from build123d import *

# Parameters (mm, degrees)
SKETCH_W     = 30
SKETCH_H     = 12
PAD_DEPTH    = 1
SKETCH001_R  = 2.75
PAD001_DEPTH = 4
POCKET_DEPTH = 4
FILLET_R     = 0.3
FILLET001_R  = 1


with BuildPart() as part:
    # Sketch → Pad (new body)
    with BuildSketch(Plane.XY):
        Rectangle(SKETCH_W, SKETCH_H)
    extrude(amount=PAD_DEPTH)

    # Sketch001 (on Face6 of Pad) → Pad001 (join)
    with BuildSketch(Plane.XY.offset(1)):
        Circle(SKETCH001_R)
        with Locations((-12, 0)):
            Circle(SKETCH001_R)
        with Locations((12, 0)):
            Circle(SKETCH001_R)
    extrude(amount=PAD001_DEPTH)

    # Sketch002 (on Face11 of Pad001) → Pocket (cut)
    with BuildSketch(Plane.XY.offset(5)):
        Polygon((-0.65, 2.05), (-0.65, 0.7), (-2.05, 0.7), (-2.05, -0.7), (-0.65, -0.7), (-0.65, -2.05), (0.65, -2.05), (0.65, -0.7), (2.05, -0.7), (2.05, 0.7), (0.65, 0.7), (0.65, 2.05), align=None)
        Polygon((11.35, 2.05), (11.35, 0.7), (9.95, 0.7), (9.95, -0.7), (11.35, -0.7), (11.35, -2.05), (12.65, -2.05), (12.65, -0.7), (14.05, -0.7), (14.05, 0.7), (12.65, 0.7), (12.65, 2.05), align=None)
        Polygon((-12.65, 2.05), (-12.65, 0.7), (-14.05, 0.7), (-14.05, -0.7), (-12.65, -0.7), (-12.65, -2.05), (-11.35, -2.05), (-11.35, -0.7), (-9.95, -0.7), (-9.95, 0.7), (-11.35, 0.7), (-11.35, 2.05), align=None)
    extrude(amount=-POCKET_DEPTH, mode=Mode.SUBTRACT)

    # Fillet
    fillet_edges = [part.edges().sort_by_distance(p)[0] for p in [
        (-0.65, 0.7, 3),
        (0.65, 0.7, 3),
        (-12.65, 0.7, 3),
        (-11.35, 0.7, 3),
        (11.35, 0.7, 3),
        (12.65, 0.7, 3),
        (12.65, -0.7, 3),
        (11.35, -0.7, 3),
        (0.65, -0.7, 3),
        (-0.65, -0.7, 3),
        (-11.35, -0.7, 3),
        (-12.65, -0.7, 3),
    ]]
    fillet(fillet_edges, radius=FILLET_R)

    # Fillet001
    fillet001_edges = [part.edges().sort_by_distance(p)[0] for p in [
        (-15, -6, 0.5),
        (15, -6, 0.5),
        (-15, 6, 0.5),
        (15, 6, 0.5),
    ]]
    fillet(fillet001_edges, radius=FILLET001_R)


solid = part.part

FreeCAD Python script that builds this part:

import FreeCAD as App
import Part
import Sketcher

V = App.Vector
Q = App.Units.Quantity


def edges_at(feature, points):
    """Names of the edges that pass closest to the given points."""
    edges = feature.Shape.Edges
    near = lambda p: min(range(len(edges)), key=lambda i: edges[i].distToShape(Part.Vertex(*p))[0])
    return sorted({f"Edge{near(p) + 1}" for p in points})

doc = App.newDocument("Part")
params = doc.addObject("Spreadsheet::Sheet", "Params")
for row, (alias, value) in enumerate([
    ("sketch1_width", "30 mm"),
    ("sketch1_height", "12 mm"),
    ("pad1_length", "1 mm"),
    ("sketch2_diameter", "5.5 mm"),
    ("pad2_length", "4 mm"),
    ("sketch3_width", "1.4 mm"),
    ("sketch3_width2", "1.3 mm"),
    ("sketch3_height", "1.35 mm"),
    ("pocket1_length", "4 mm"),
    ("fillet_radius", "0.3 mm"),
    ("fillet2_radius", "1 mm"),
], start=1):
    params.set(f"A{row}", alias)
    params.set(f"B{row}", "=" + value)
    params.setAlias(f"B{row}", alias)

body = doc.addObject("PartDesign::Body", "Body")

sketch1 = doc.addObject("Sketcher::SketchObject", "Sketch")
body.addObject(sketch1)
sketch1.AttachmentSupport = (doc.XY_Plane, [""])
sketch1.MapMode = "FlatFace"
sketch1.addGeometry([
    Part.LineSegment(V(-15, 6, 0), V(-15, -6, 0)),
    Part.LineSegment(V(-15, -6, 0), V(15, -6, 0)),
    Part.LineSegment(V(15, -6, 0), V(15, 6, 0)),
    Part.LineSegment(V(15, 6, 0), V(-15, 6, 0)),
], False)
sketch1.addConstraint([
    Sketcher.Constraint("Coincident", 0, 2, 1, 1),
    Sketcher.Constraint("Coincident", 1, 2, 2, 1),
    Sketcher.Constraint("Coincident", 2, 2, 3, 1),
    Sketcher.Constraint("Coincident", 3, 2, 0, 1),
    Sketcher.Constraint("Vertical", 0),
    Sketcher.Constraint("Horizontal", 1),
    Sketcher.Constraint("Vertical", 2),
    Sketcher.Constraint("Horizontal", 3),
    Sketcher.Constraint("Symmetric", 0, 2, 2, 2, -1, 1),
    Sketcher.Constraint("DistanceX", 1, 1, 1, 2, Q("30 mm")),
    Sketcher.Constraint("DistanceY", 0, 2, 0, 1, Q("12 mm")),
])
sketch1.setExpression("Constraints[9]", "Params.sketch1_width")
sketch1.setExpression("Constraints[10]", "Params.sketch1_height")
pad1 = doc.addObject("PartDesign::Pad", "Pad")
body.addObject(pad1)
pad1.Profile = sketch1
pad1.setExpression("Length", "Params.pad1_length")

sketch2 = doc.addObject("Sketcher::SketchObject", "Sketch001")
body.addObject(sketch2)
sketch2.AttachmentSupport = (doc.XY_Plane, [""])
sketch2.MapMode = "FlatFace"
sketch2.AttachmentOffset = App.Placement(V(0, 0, 1), App.Rotation())
sketch2.addGeometry([
    Part.Circle(V(0, 0, 0), V(0, 0, 1), 2.8),
    Part.Circle(V(-12, 0, 0), V(0, 0, 1), 2.8),
    Part.Circle(V(12, 0, 0), V(0, 0, 1), 2.8),
], False)
sketch2.addConstraint([
    Sketcher.Constraint("Coincident", 0, 3, -1, 1),
    Sketcher.Constraint("Equal", 0, 1),
    Sketcher.Constraint("Equal", 1, 2),
    Sketcher.Constraint("Symmetric", 1, 3, 2, 3, -1, 1),
    Sketcher.Constraint("PointOnObject", 1, 3, -1),
    Sketcher.Constraint("Diameter", 0, Q("5.5 mm")),
    Sketcher.Constraint("DistanceX", 1, 3, -1, 1, Q("12 mm")),
])
sketch2.setExpression("Constraints[5]", "Params.sketch2_diameter")
pad2 = doc.addObject("PartDesign::Pad", "Pad001")
body.addObject(pad2)
pad2.Profile = sketch2
pad2.setExpression("Length", "Params.pad2_length")

sketch3 = doc.addObject("Sketcher::SketchObject", "Sketch002")
body.addObject(sketch3)
sketch3.AttachmentSupport = (doc.XY_Plane, [""])
sketch3.MapMode = "FlatFace"
sketch3.AttachmentOffset = App.Placement(V(0, 0, 5), App.Rotation())
sketch3.addGeometry([
    Part.LineSegment(V(-0.7, 2, 0), V(-0.7, 0.7, 0)),
    Part.LineSegment(V(-0.7, 0.7, 0), V(-2, 0.7, 0)),
    Part.LineSegment(V(-2, 0.7, 0), V(-2, -0.7, 0)),
    Part.LineSegment(V(-2, -0.7, 0), V(-0.7, -0.7, 0)),
    Part.LineSegment(V(-0.7, -0.7, 0), V(-0.7, -2, 0)),
    Part.LineSegment(V(-0.7, -2, 0), V(0.7, -2, 0)),
    Part.LineSegment(V(0.7, -2, 0), V(0.7, -0.7, 0)),
    Part.LineSegment(V(0.7, -0.7, 0), V(2, -0.7, 0)),
    Part.LineSegment(V(2, -0.7, 0), V(2, 0.7, 0)),
    Part.LineSegment(V(2, 0.7, 0), V(0.7, 0.7, 0)),
    Part.LineSegment(V(0.7, 0.7, 0), V(0.7, 2, 0)),
    Part.LineSegment(V(0.7, 2, 0), V(-0.7, 2, 0)),
    Part.LineSegment(V(11.3, 2, 0), V(11.3, 0.7, 0)),
    Part.LineSegment(V(11.3, 0.7, 0), V(9.9, 0.7, 0)),
    Part.LineSegment(V(9.9, 0.7, 0), V(9.9, -0.7, 0)),
    Part.LineSegment(V(9.9, -0.7, 0), V(11.3, -0.7, 0)),
    Part.LineSegment(V(11.3, -0.7, 0), V(11.3, -2, 0)),
    Part.LineSegment(V(11.3, -2, 0), V(12.7, -2, 0)),
    Part.LineSegment(V(12.7, -2, 0), V(12.7, -0.7, 0)),
    Part.LineSegment(V(12.7, -0.7, 0), V(14.1, -0.7, 0)),
    Part.LineSegment(V(14.1, -0.7, 0), V(14.1, 0.7, 0)),
    Part.LineSegment(V(14.1, 0.7, 0), V(12.7, 0.7, 0)),
    Part.LineSegment(V(12.7, 0.7, 0), V(12.7, 2, 0)),
    Part.LineSegment(V(12.7, 2, 0), V(11.3, 2, 0)),
    Part.LineSegment(V(-12.7, 2, 0), V(-12.7, 0.7, 0)),
    Part.LineSegment(V(-12.7, 0.7, 0), V(-14.1, 0.7, 0)),
    Part.LineSegment(V(-14.1, 0.7, 0), V(-14.1, -0.7, 0)),
    Part.LineSegment(V(-14.1, -0.7, 0), V(-12.7, -0.7, 0)),
    Part.LineSegment(V(-12.7, -0.7, 0), V(-12.7, -2, 0)),
    Part.LineSegment(V(-12.7, -2, 0), V(-11.3, -2, 0)),
    Part.LineSegment(V(-11.3, -2, 0), V(-11.3, -0.7, 0)),
    Part.LineSegment(V(-11.3, -0.7, 0), V(-9.9, -0.7, 0)),
    Part.LineSegment(V(-9.9, -0.7, 0), V(-9.9, 0.7, 0)),
    Part.LineSegment(V(-9.9, 0.7, 0), V(-11.3, 0.7, 0)),
    Part.LineSegment(V(-11.3, 0.7, 0), V(-11.3, 2, 0)),
    Part.LineSegment(V(-11.3, 2, 0), V(-12.7, 2, 0)),
], False)
sketch3.addConstraint([
    Sketcher.Constraint("Coincident", 0, 2, 1, 1),
    Sketcher.Constraint("Coincident", 1, 2, 2, 1),
    Sketcher.Constraint("Coincident", 2, 2, 3, 1),
    Sketcher.Constraint("Coincident", 3, 2, 4, 1),
    Sketcher.Constraint("Coincident", 4, 2, 5, 1),
    Sketcher.Constraint("Coincident", 5, 2, 6, 1),
    Sketcher.Constraint("Coincident", 6, 2, 7, 1),
    Sketcher.Constraint("Coincident", 7, 2, 8, 1),
    Sketcher.Constraint("Coincident", 8, 2, 9, 1),
    Sketcher.Constraint("Coincident", 9, 2, 10, 1),
    Sketcher.Constraint("Coincident", 10, 2, 11, 1),
    Sketcher.Constraint("Coincident", 11, 2, 0, 1),
    Sketcher.Constraint("Coincident", 12, 2, 13, 1),
    Sketcher.Constraint("Coincident", 13, 2, 14, 1),
    Sketcher.Constraint("Coincident", 14, 2, 15, 1),
    Sketcher.Constraint("Coincident", 15, 2, 16, 1),
    Sketcher.Constraint("Coincident", 16, 2, 17, 1),
    Sketcher.Constraint("Coincident", 17, 2, 18, 1),
    Sketcher.Constraint("Coincident", 18, 2, 19, 1),
    Sketcher.Constraint("Coincident", 19, 2, 20, 1),
    Sketcher.Constraint("Coincident", 20, 2, 21, 1),
    Sketcher.Constraint("Coincident", 21, 2, 22, 1),
    Sketcher.Constraint("Coincident", 22, 2, 23, 1),
    Sketcher.Constraint("Coincident", 23, 2, 12, 1),
    Sketcher.Constraint("Coincident", 24, 2, 25, 1),
    Sketcher.Constraint("Coincident", 25, 2, 26, 1),
    Sketcher.Constraint("Coincident", 26, 2, 27, 1),
    Sketcher.Constraint("Coincident", 27, 2, 28, 1),
    Sketcher.Constraint("Coincident", 28, 2, 29, 1),
    Sketcher.Constraint("Coincident", 29, 2, 30, 1),
    Sketcher.Constraint("Coincident", 30, 2, 31, 1),
    Sketcher.Constraint("Coincident", 31, 2, 32, 1),
    Sketcher.Constraint("Coincident", 32, 2, 33, 1),
    Sketcher.Constraint("Coincident", 33, 2, 34, 1),
    Sketcher.Constraint("Coincident", 34, 2, 35, 1),
    Sketcher.Constraint("Coincident", 35, 2, 24, 1),
    Sketcher.Constraint("Vertical", 0),
    Sketcher.Constraint("Horizontal", 1),
    Sketcher.Constraint("Vertical", 2),
    Sketcher.Constraint("Horizontal", 3),
    Sketcher.Constraint("Vertical", 4),
    Sketcher.Constraint("Horizontal", 5),
    Sketcher.Constraint("Vertical", 6),
    Sketcher.Constraint("Horizontal", 7),
    Sketcher.Constraint("Vertical", 8),
    Sketcher.Constraint("Horizontal", 9),
    Sketcher.Constraint("Vertical", 10),
    Sketcher.Constraint("Horizontal", 11),
    Sketcher.Constraint("Vertical", 12),
    Sketcher.Constraint("Horizontal", 13),
    Sketcher.Constraint("Vertical", 14),
    Sketcher.Constraint("Horizontal", 15),
    Sketcher.Constraint("Vertical", 16),
    Sketcher.Constraint("Horizontal", 17),
    Sketcher.Constraint("Vertical", 18),
    Sketcher.Constraint("Horizontal", 19),
    Sketcher.Constraint("Vertical", 20),
    Sketcher.Constraint("Horizontal", 21),
    Sketcher.Constraint("Vertical", 22),
    Sketcher.Constraint("Horizontal", 23),
    Sketcher.Constraint("Vertical", 24),
    Sketcher.Constraint("Horizontal", 25),
    Sketcher.Constraint("Vertical", 26),
    Sketcher.Constraint("Horizontal", 27),
    Sketcher.Constraint("Vertical", 28),
    Sketcher.Constraint("Horizontal", 29),
    Sketcher.Constraint("Vertical", 30),
    Sketcher.Constraint("Horizontal", 31),
    Sketcher.Constraint("Vertical", 32),
    Sketcher.Constraint("Horizontal", 33),
    Sketcher.Constraint("Vertical", 34),
    Sketcher.Constraint("Horizontal", 35),
    Sketcher.Constraint("Symmetric", 0, 2, 6, 2, -1, 1),
    Sketcher.Constraint("Symmetric", 2, 2, 8, 2, -1, 1),
    Sketcher.Constraint("Symmetric", 4, 2, 10, 2, -1, 1),
    Sketcher.Constraint("Symmetric", 18, 2, 24, 2, -1, 1),
    Sketcher.Constraint("Symmetric", 20, 2, 26, 2, -1, 1),
    Sketcher.Constraint("Symmetric", 22, 2, 28, 2, -1, 1),
    Sketcher.Constraint("Symmetric", 12, 2, 30, 2, -1, 1),
    Sketcher.Constraint("Symmetric", 14, 2, 32, 2, -1, 1),
    Sketcher.Constraint("Symmetric", 16, 2, 34, 2, -1, 1),
    Sketcher.Constraint("Symmetric", 3, 2, 6, 2, -2),
    Sketcher.Constraint("Symmetric", 21, 2, 24, 2, -2),
    Sketcher.Constraint("Symmetric", 16, 2, 29, 2, -2),
    Sketcher.Constraint("Horizontal", 9, 2, 12, 2),
    Sketcher.Constraint("Horizontal", 7, 2, 14, 2),
    Sketcher.Constraint("Horizontal", 5, 2, 16, 2),
    Sketcher.Constraint("Horizontal", 15, 2, 18, 2),
    Sketcher.Constraint("Equal", 9, 13),
    Sketcher.Constraint("Equal", 11, 17),
    Sketcher.Constraint("Equal", 15, 19),
    Sketcher.Constraint("Equal", 33, 2),
    Sketcher.Constraint("DistanceX", 1, 2, 1, 1, Q("1.4 mm")),
    Sketcher.Constraint("DistanceX", 5, 1, 5, 2, Q("1.3 mm")),
    Sketcher.Constraint("DistanceX", 24, 2, 0, 2, Q("12 mm")),
    Sketcher.Constraint("DistanceY", 0, 2, 0, 1, Q("1.35 mm")),
])
sketch3.setExpression("Constraints[92]", "Params.sketch3_width")
sketch3.setExpression("Constraints[93]", "Params.sketch3_width2")
sketch3.setExpression("Constraints[95]", "Params.sketch3_height")
pocket1 = doc.addObject("PartDesign::Pocket", "Pocket")
body.addObject(pocket1)
pocket1.Profile = sketch3
pocket1.setExpression("Length", "Params.pocket1_length")
doc.recompute()

fillet = doc.addObject("PartDesign::Fillet", "Fillet")
body.addObject(fillet)
fillet.Base = (pocket1, edges_at(pocket1, [
    (-0.65, 0.7, 3),
    (0.65, 0.7, 3),
    (-12.65, 0.7, 3),
    (-11.35, 0.7, 3),
    (11.35, 0.7, 3),
    (12.65, 0.7, 3),
    (12.65, -0.7, 3),
    (11.35, -0.7, 3),
    (0.65, -0.7, 3),
    (-0.65, -0.7, 3),
    (-11.35, -0.7, 3),
    (-12.65, -0.7, 3),
]))
fillet.setExpression("Radius", "Params.fillet_radius")
doc.recompute()

fillet2 = doc.addObject("PartDesign::Fillet", "Fillet001")
body.addObject(fillet2)
fillet2.Base = (fillet, edges_at(fillet, [
    (-15, -6, 0.5),
    (15, -6, 0.5),
    (-15, 6, 0.5),
    (15, 6, 0.5),
]))
fillet2.setExpression("Radius", "Params.fillet2_radius")

doc.recompute()
